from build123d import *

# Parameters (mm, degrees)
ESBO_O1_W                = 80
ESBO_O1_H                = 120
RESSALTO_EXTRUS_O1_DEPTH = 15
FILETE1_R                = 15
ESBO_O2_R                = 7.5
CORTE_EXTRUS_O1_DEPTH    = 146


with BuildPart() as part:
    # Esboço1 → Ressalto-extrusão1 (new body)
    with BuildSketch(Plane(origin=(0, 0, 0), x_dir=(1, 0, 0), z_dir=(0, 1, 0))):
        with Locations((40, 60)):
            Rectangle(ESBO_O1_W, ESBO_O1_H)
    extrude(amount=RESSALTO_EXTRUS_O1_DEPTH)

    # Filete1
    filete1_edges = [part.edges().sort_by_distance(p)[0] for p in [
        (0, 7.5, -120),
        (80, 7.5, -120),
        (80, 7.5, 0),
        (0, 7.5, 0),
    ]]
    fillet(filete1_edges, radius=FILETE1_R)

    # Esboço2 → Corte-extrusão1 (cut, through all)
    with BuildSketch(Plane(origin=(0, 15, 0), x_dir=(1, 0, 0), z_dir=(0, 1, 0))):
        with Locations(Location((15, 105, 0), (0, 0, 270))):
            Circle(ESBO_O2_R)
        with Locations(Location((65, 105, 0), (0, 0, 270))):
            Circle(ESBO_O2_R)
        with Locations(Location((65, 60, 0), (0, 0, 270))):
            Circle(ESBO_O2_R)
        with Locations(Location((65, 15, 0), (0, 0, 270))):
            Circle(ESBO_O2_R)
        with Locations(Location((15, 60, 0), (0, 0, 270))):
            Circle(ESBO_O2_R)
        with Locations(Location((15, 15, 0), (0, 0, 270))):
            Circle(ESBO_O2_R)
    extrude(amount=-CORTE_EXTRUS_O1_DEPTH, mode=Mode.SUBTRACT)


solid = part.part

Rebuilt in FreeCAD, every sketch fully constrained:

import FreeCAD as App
import Part
import Sketcher
from FreeCAD import Vector
Q = App.Units.Quantity


def edges_at(feature, points):
    """Names of the edges that pass closest to the given points."""
    edges = feature.Shape.Edges
    near = lambda p: min(range(len(edges)), key=lambda i: edges[i].distToShape(Part.Vertex(*p))[0])
    return sorted({f"Edge{near(p) + 1}" for p in points})


def add_polygon(sketch, points):
    """Adds a closed chain of lines whose ends are joined by coincident constraints."""
    first, n = sketch.GeometryCount, len(points)
    for a, b in zip(points, points[1:] + points[:1]):
        sketch.addGeometry(Part.LineSegment(App.Vector(*a, 0), App.Vector(*b, 0)), False)
    for i in range(n):
        sketch.addConstraint(Sketcher.Constraint("Coincident", first + i, 2, first + (i + 1) % n, 1))

doc = App.newDocument("Part")
params = doc.addObject("Spreadsheet::Sheet", "Params")
for row, (alias, value) in enumerate([
    ("sketch1_width", "80 mm"),
    ("sketch1_height", "120 mm"),
    ("pad1_length", "15 mm"),
    ("fillet_radius", "15 mm"),
    ("sketch2_diameter", "15 mm"),
], start=1):
    params.set(f"A{row}", alias)
    params.set(f"B{row}", "=" + value)
    params.setAlias(f"B{row}", alias)

body = doc.addObject("PartDesign::Body", "Body")

# Sketch on XZ plane
sketch1 = doc.addObject("Sketcher::SketchObject", "Sketch")
body.addObject(sketch1)
sketch1.AttachmentSupport = (doc.XZ_Plane, [""])
sketch1.MapMode = "FlatFace"
add_polygon(sketch1, [(0, -120), (0, 0), (80, 0), (80, -120)])  # lines 0-3
sketch1.addConstraint([
    Sketcher.Constraint("Vertical", 0),
    Sketcher.Constraint("Horizontal", 1),
    Sketcher.Constraint("Vertical", 2),
    Sketcher.Constraint("Horizontal", 3),
    Sketcher.Constraint("Coincident", 0, 2, -1, 1),
    Sketcher.Constraint("DistanceX", 1, 1, 1, 2, Q("80 mm")),
    Sketcher.Constraint("DistanceY", 0, 1, 0, 2, Q("120 mm")),
])
sketch1.setExpression("Constraints[9]", "Params.sketch1_width")
sketch1.setExpression("Constraints[10]", "Params.sketch1_height")
pad1 = doc.addObject("PartDesign::Pad", "Pad")
body.addObject(pad1)
pad1.Profile = sketch1
pad1.setExpression("Length", "Params.pad1_length")
pad1.Reversed = True
doc.recompute()

fillet = doc.addObject("PartDesign::Fillet", "Fillet")
body.addObject(fillet)
fillet.Base = (pad1, edges_at(pad1, [
    (0, 7.5, -120),
    (80, 7.5, -120),
    (80, 7.5, 0),
    (0, 7.5, 0),
]))
fillet.setExpression("Radius", "Params.fillet_radius")

# Sketch on XZ plane
sketch2 = doc.addObject("Sketcher::SketchObject", "Sketch001")
body.addObject(sketch2)
sketch2.AttachmentSupport = (doc.XZ_Plane, [""])
sketch2.MapMode = "FlatFace"
sketch2.AttachmentOffset = App.Placement(Vector(0, 0, -15), App.Rotation())
sketch2.addGeometry([
    Part.Circle(Vector(15, -105, 0), Vector(0, 0, 1), 8),  # 0
    Part.Circle(Vector(65, -105, 0), Vector(0, 0, 1), 8),  # 1
    Part.Circle(Vector(65, -60, 0), Vector(0, 0, 1), 8),  # 2
    Part.Circle(Vector(65, -15, 0), Vector(0, 0, 1), 8),  # 3
    Part.Circle(Vector(15, -60, 0), Vector(0, 0, 1), 8),  # 4
    Part.Circle(Vector(15, -15, 0), Vector(0, 0, 1), 8),  # 5
], False)
sketch2.addConstraint([
    Sketcher.Constraint("Equal", 0, 1),
    Sketcher.Constraint("Equal", 1, 2),
    Sketcher.Constraint("Equal", 2, 3),
    Sketcher.Constraint("Equal", 3, 4),
    Sketcher.Constraint("Equal", 4, 5),
    Sketcher.Constraint("Horizontal", 0, 3, 1, 3),
    Sketcher.Constraint("Horizontal", 2, 3, 4, 3),
    Sketcher.Constraint("Horizontal", 3, 3, 5, 3),
    Sketcher.Constraint("Vertical", 1, 3, 2, 3),
    Sketcher.Constraint("Vertical", 2, 3, 3, 3),
    Sketcher.Constraint("Vertical", 0, 3, 4, 3),
    Sketcher.Constraint("Vertical", 4, 3, 5, 3),
    Sketcher.Constraint("Diameter", 0, Q("15 mm")),
    Sketcher.Constraint("DistanceX", -1, 1, 0, 3, Q("15 mm")),
    Sketcher.Constraint("DistanceY", 0, 3, -1, 1, Q("105 mm")),
    Sketcher.Constraint("DistanceX", -1, 1, 1, 3, Q("65 mm")),
    Sketcher.Constraint("DistanceY", 2, 3, -1, 1, Q("60 mm")),
    Sketcher.Constraint("DistanceY", 3, 3, -1, 1, Q("15 mm")),
])
sketch2.setExpression("Constraints[12]", "Params.sketch2_diameter")
pocket1 = doc.addObject("PartDesign::Pocket", "Pocket")
body.addObject(pocket1)
pocket1.Profile = sketch2
pocket1.Type = "ThroughAll"
pocket1.Reversed = True

doc.recompute()
